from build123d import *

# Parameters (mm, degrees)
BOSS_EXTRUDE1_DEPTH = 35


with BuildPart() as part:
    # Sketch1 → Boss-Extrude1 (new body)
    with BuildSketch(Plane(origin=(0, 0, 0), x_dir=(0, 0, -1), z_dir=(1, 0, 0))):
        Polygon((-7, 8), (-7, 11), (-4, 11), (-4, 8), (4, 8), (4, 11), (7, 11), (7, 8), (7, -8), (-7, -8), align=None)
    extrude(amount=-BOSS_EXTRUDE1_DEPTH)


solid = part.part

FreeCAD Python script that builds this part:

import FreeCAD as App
import Part
import Sketcher
from FreeCAD import Vector
Q = App.Units.Quantity


def add_polygon(sketch, points):
    """Adds a closed chain of lines whose ends are joined by coincident constraints."""
    first, n = sketch.GeometryCount, len(points)
    for a, b in zip(points, points[1:] + points[:1]):
        sketch.addGeometry(Part.LineSegment(App.Vector(*a, 0), App.Vector(*b, 0)), False)
    for i in range(n):
        sketch.addConstraint(Sketcher.Constraint("Coincident", first + i, 2, first + (i + 1) % n, 1))

doc = App.newDocument("Part")
body = doc.addObject("PartDesign::Body", "Body")

# Sketch on YZ plane
sketch1 = body.newObject("Sketcher::SketchObject", "Sketch")
sketch1.AttachmentSupport = (doc.getObject("YZ_Plane"), [""])
sketch1.MapMode = "FlatFace"
add_polygon(sketch1, [(11, 7), (-8, 7), (-8, -7), (11, -7), (11, -4), (8, -4), (8, 4), (11, 4)])  # lines 0-7
sketch1.addConstraint([
    Sketcher.Constraint("Horizontal", 0),
    Sketcher.Constraint("Vertical", 1),
    Sketcher.Constraint("Horizontal", 2),
    Sketcher.Constraint("Vertical", 3),
    Sketcher.Constraint("Horizontal", 4),
    Sketcher.Constraint("Vertical", 5),
    Sketcher.Constraint("Horizontal", 6),
    Sketcher.Constraint("Vertical", 7),
    Sketcher.Constraint("Symmetric", 3, 2, 6, 2, -1),
    Sketcher.Constraint("Equal", 6, 3),
    Sketcher.Constraint("Equal", 3, 7),
    Sketcher.Constraint("DistanceX", 0, 2, 0, 1, Q("19 mm")),
    Sketcher.Constraint("DistanceX", 4, 2, 4, 1, Q("3 mm")),
    Sketcher.Constraint("DistanceY", 1, 2, 1, 1, Q("14 mm")),
    Sketcher.Constraint("DistanceX", 0, 2, -1, 1, Q("8 mm")),
])
pad1 = body.newObject("PartDesign::Pad", "Pad")
pad1.Profile = sketch1
pad1.Length = 35
pad1.Reversed = True

doc.recompute()
